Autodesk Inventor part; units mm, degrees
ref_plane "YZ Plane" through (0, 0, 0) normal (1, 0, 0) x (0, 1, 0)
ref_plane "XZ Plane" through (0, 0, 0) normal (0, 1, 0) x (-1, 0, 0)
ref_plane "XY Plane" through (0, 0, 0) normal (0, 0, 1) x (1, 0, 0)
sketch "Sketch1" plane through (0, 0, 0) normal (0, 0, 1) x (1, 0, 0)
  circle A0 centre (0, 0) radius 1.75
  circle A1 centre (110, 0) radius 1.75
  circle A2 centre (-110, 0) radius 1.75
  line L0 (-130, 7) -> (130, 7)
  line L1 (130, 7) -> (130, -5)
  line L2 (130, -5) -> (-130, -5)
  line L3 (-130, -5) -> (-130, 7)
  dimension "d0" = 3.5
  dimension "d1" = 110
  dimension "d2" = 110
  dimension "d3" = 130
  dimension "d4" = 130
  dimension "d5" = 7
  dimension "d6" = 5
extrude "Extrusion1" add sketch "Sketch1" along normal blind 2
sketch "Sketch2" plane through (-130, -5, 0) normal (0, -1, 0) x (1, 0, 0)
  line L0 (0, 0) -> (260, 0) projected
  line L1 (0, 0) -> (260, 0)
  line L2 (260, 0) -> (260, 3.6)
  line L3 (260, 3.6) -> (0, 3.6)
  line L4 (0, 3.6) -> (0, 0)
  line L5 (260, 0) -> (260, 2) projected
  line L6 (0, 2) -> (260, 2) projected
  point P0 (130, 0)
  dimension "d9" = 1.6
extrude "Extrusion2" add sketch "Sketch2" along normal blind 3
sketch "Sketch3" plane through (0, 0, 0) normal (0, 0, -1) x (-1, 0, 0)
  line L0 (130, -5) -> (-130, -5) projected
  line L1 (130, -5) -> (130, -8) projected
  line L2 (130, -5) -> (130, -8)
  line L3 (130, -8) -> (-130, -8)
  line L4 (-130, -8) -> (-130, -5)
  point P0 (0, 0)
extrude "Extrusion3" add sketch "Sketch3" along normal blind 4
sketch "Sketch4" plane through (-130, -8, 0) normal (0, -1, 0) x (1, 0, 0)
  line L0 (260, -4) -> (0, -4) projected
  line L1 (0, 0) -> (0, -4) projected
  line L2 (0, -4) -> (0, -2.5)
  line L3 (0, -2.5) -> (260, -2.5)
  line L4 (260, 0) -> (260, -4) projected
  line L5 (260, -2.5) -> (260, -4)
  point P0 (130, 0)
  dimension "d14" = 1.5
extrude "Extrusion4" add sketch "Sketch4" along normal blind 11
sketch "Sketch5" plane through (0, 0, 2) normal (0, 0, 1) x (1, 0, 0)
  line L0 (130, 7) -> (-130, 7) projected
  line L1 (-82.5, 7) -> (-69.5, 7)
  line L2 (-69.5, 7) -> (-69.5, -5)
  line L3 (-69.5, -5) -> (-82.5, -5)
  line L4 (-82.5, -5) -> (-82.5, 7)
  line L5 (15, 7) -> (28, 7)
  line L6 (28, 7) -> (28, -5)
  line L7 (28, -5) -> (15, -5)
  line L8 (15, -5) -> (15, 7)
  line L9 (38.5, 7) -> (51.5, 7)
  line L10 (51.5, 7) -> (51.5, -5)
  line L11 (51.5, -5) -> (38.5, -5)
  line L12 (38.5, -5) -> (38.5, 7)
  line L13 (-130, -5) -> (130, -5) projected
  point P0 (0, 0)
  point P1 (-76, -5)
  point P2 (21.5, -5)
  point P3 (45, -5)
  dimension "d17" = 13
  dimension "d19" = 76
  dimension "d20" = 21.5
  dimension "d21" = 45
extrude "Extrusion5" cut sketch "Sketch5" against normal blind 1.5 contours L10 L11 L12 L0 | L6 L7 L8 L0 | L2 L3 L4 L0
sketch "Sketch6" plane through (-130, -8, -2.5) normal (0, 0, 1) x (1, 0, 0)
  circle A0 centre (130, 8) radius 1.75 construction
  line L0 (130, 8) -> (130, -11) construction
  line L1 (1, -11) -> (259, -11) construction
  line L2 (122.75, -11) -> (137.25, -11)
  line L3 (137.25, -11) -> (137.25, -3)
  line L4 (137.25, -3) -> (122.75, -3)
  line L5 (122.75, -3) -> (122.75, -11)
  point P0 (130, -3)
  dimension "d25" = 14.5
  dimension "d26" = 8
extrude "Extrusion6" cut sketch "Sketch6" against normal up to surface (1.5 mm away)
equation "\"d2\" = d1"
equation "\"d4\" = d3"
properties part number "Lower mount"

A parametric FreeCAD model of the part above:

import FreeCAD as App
import Part
import Sketcher
from FreeCAD import Vector


def add_polygon(sketch, points):
    """Adds a closed chain of lines whose ends are joined by coincident constraints."""
    first, n = sketch.GeometryCount, len(points)
    for a, b in zip(points, points[1:] + points[:1]):
        sketch.addGeometry(Part.LineSegment(App.Vector(*a, 0), App.Vector(*b, 0)), False)
    for i in range(n):
        sketch.addConstraint(Sketcher.Constraint("Coincident", first + i, 2, first + (i + 1) % n, 1))

doc = App.newDocument("Part")
params = doc.addObject("Spreadsheet::Sheet", "Params")
for row, (alias, value) in enumerate([
    ("sketch1_diameter", "3.5 mm"),
    ("pad1_length", "2 mm"),
    ("sketch2_width", "260 mm"),
    ("sketch2_height", "3.6 mm"),
    ("pad2_length", "3 mm"),
    ("sketch3_width", "260 mm"),
    ("sketch3_height", "3 mm"),
    ("pad3_length", "4 mm"),
    ("sketch4_height", "1.5 mm"),
    ("sketch4_width", "260 mm"),
    ("pad4_length", "11 mm"),
    ("sketch5_width", "13 mm"),
    ("sketch5_height", "12 mm"),
    ("pocket1_length", "1.5 mm"),
    ("sketch6_height", "8 mm"),
    ("sketch6_width", "14.5 mm"),
    ("pocket2_length", "1.5 mm"),
], start=1):
    params.set(f"A{row}", alias)
    params.set(f"B{row}", "=" + value)
    params.setAlias(f"B{row}", alias)

body = doc.addObject("PartDesign::Body", "Body")

# Sketch on XY plane
sketch1 = body.newObject("Sketcher::SketchObject", "Sketch")
sketch1.AttachmentSupport = (doc.getObject("XY_Plane"), [""])
sketch1.MapMode = "FlatFace"
add_polygon(sketch1, [(130, 7), (-130, 7), (-130, -5), (130, -5)])  # lines 0-3
sketch1.addGeometry(Part.Circle(Vector(-110, 0, 0), Vector(0, 0, 1), 1.8), False)  # 4
sketch1.addGeometry(Part.Circle(Vector(0, 0, 0), Vector(0, 0, 1), 1.8), False)  # 5
sketch1.addGeometry(Part.Circle(Vector(110, 0, 0), Vector(0, 0, 1), 1.8), False)  # 6
sketch1.addConstraint(Sketcher.Constraint("Horizontal", 0))
sketch1.addConstraint(Sketcher.Constraint("Vertical", 1))
sketch1.addConstraint(Sketcher.Constraint("Horizontal", 2))
sketch1.addConstraint(Sketcher.Constraint("Vertical", 3))
sketch1.addConstraint(Sketcher.Constraint("Coincident", 5, 3, -1, 1))
sketch1.addConstraint(Sketcher.Constraint("Equal", 4, 5))
sketch1.addConstraint(Sketcher.Constraint("Equal", 5, 6))
sketch1.addConstraint(Sketcher.Constraint("Symmetric", 4, 3, 6, 3, -1, 1))
sketch1.addConstraint(Sketcher.Constraint("PointOnObject", 4, 3, -1))
sketch1.addConstraint(Sketcher.Constraint("Diameter", 4, 3.5))
sketch1.addConstraint(Sketcher.Constraint("DistanceX", 4, 3, -1, 1, 110.0))
sketch1.addConstraint(Sketcher.Constraint("DistanceX", 0, 2, -1, 1, 130.0))
sketch1.addConstraint(Sketcher.Constraint("DistanceY", -1, 1, 0, 2, 7.0))
sketch1.addConstraint(Sketcher.Constraint("DistanceY", 1, 2, -1, 1, 5.0))
sketch1.addConstraint(Sketcher.Constraint("DistanceX", -1, 1, 2, 2, 130.0))
sketch1.setExpression("Constraints[13]", "Params.sketch1_diameter")
pad1 = body.newObject("PartDesign::Pad", "Pad")
pad1.Profile = sketch1
pad1.setExpression("Length", "Params.pad1_length")

# Sketch on XZ plane
sketch2 = body.newObject("Sketcher::SketchObject", "Sketch001")
sketch2.AttachmentSupport = (doc.getObject("XZ_Plane"), [""])
sketch2.MapMode = "FlatFace"
sketch2.AttachmentOffset = App.Placement(Vector(0, 0, 5), App.Rotation())
add_polygon(sketch2, [(-130, 0), (130, 0), (130, 3.6), (-130, 3.6)])  # lines 0-3
sketch2.addConstraint(Sketcher.Constraint("Horizontal", 0))
sketch2.addConstraint(Sketcher.Constraint("Vertical", 1))
sketch2.addConstraint(Sketcher.Constraint("Horizontal", 2))
sketch2.addConstraint(Sketcher.Constraint("Vertical", 3))
sketch2.addConstraint(Sketcher.Constraint("Symmetric", 0, 2, 3, 2, -1, 1))
sketch2.addConstraint(Sketcher.Constraint("DistanceX", 0, 1, 0, 2, 260.0))
sketch2.addConstraint(Sketcher.Constraint("DistanceY", 1, 1, 1, 2, 3.6))
sketch2.setExpression("Constraints[9]", "Params.sketch2_width")
sketch2.setExpression("Constraints[10]", "Params.sketch2_height")
pad2 = body.newObject("PartDesign::Pad", "Pad001")
pad2.Profile = sketch2
pad2.setExpression("Length", "Params.pad2_length")

# Sketch on XY plane
sketch3 = body.newObject("Sketcher::SketchObject", "Sketch002")
sketch3.AttachmentSupport = (doc.getObject("XY_Plane"), [""])
sketch3.MapMode = "FlatFace"
add_polygon(sketch3, [(-130, -8), (-130, -5), (130, -5), (130, -8)])  # lines 0-3
sketch3.addConstraint(Sketcher.Constraint("Vertical", 0))
sketch3.addConstraint(Sketcher.Constraint("Horizontal", 1))
sketch3.addConstraint(Sketcher.Constraint("Vertical", 2))
sketch3.addConstraint(Sketcher.Constraint("Horizontal", 3))
sketch3.addConstraint(Sketcher.Constraint("DistanceX", 1, 1, 1, 2, 260.0))
sketch3.addConstraint(Sketcher.Constraint("DistanceY", 0, 1, 0, 2, 3.0))
sketch3.addConstraint(Sketcher.Constraint("DistanceX", 0, 2, -1, 1, 130.0))
sketch3.addConstraint(Sketcher.Constraint("DistanceY", 0, 2, -1, 1, 5.0))
sketch3.setExpression("Constraints[8]", "Params.sketch3_width")
sketch3.setExpression("Constraints[9]", "Params.sketch3_height")
pad3 = body.newObject("PartDesign::Pad", "Pad002")
pad3.Profile = sketch3
pad3.setExpression("Length", "Params.pad3_length")
pad3.Reversed = True

# Sketch on XZ plane
sketch4 = body.newObject("Sketcher::SketchObject", "Sketch003")
sketch4.AttachmentSupport = (doc.getObject("XZ_Plane"), [""])
sketch4.MapMode = "FlatFace"
sketch4.AttachmentOffset = App.Placement(Vector(0, 0, 8), App.Rotation())
add_polygon(sketch4, [(-130, -4), (130, -4), (130, -2.5), (-130, -2.5)])  # lines 0-3
sketch4.addConstraint(Sketcher.Constraint("Horizontal", 0))
sketch4.addConstraint(Sketcher.Constraint("Vertical", 1))
sketch4.addConstraint(Sketcher.Constraint("Horizontal", 2))
sketch4.addConstraint(Sketcher.Constraint("Vertical", 3))
sketch4.addConstraint(Sketcher.Constraint("DistanceY", 1, 1, 1, 2, 1.5))
sketch4.addConstraint(Sketcher.Constraint("DistanceX", 0, 1, 0, 2, 260.0))
sketch4.addConstraint(Sketcher.Constraint("DistanceX", -1, 1, 0, 2, 130.0))
sketch4.addConstraint(Sketcher.Constraint("DistanceY", 0, 2, -1, 1, 4.0))
sketch4.setExpression("Constraints[8]", "Params.sketch4_height")
sketch4.setExpression("Constraints[9]", "Params.sketch4_width")
pad4 = body.newObject("PartDesign::Pad", "Pad003")
pad4.Profile = sketch4
pad4.setExpression("Length", "Params.pad4_length")

# Sketch on XY plane
sketch5 = body.newObject("Sketcher::SketchObject", "Sketch004")
sketch5.AttachmentSupport = (doc.getObject("XY_Plane"), [""])
sketch5.MapMode = "FlatFace"
sketch5.AttachmentOffset = App.Placement(Vector(0, 0, 2), App.Rotation())
add_polygon(sketch5, [(52, -5), (52, 7), (38, 7), (38, -5)])  # lines 0-3
add_polygon(sketch5, [(28, -5), (28, 7), (15, 7), (15, -5)])  # lines 4-7
add_polygon(sketch5, [(-70, -5), (-70, 7), (-82, 7), (-82, -5)])  # lines 8-11
sketch5.addConstraint(Sketcher.Constraint("Vertical", 0))
sketch5.addConstraint(Sketcher.Constraint("Horizontal", 1))
sketch5.addConstraint(Sketcher.Constraint("Vertical", 2))
sketch5.addConstraint(Sketcher.Constraint("Horizontal", 3))
sketch5.addConstraint(Sketcher.Constraint("Vertical", 4))
sketch5.addConstraint(Sketcher.Constraint("Horizontal", 5))
sketch5.addConstraint(Sketcher.Constraint("Vertical", 6))
sketch5.addConstraint(Sketcher.Constraint("Horizontal", 7))
sketch5.addConstraint(Sketcher.Constraint("Vertical", 8))
sketch5.addConstraint(Sketcher.Constraint("Horizontal", 9))
sketch5.addConstraint(Sketcher.Constraint("Vertical", 10))
sketch5.addConstraint(Sketcher.Constraint("Horizontal", 11))
sketch5.addConstraint(Sketcher.Constraint("Horizontal", 1, 2, 4, 2))
sketch5.addConstraint(Sketcher.Constraint("Horizontal", 3, 2, 6, 2))
sketch5.addConstraint(Sketcher.Constraint("Horizontal", 5, 2, 8, 2))
sketch5.addConstraint(Sketcher.Constraint("Horizontal", 7, 2, 10, 2))
sketch5.addConstraint(Sketcher.Constraint("Equal", 3, 5))
sketch5.addConstraint(Sketcher.Constraint("Equal", 7, 9))
sketch5.addConstraint(Sketcher.Constraint("DistanceX", 1, 2, 1, 1, 13.0))
sketch5.addConstraint(Sketcher.Constraint("DistanceY", 0, 1, 0, 2, 12.0))
sketch5.addConstraint(Sketcher.Constraint("DistanceY", -1, 1, 0, 2, 7.0))
sketch5.addConstraint(Sketcher.Constraint("DistanceX", -1, 1, 4, 2, 28.0))
sketch5.addConstraint(Sketcher.Constraint("DistanceX", 8, 2, 1, 2, 108.0))
sketch5.addConstraint(Sketcher.Constraint("DistanceX", -1, 1, 0, 2, 51.5))
sketch5.setExpression("Constraints[30]", "Params.sketch5_width")
sketch5.setExpression("Constraints[31]", "Params.sketch5_height")
pocket1 = body.newObject("PartDesign::Pocket", "Pocket")
pocket1.Profile = sketch5
pocket1.setExpression("Length", "Params.pocket1_length")

# Sketch on XY plane
sketch6 = body.newObject("Sketcher::SketchObject", "Sketch005")
sketch6.AttachmentSupport = (doc.getObject("XY_Plane"), [""])
sketch6.MapMode = "FlatFace"
sketch6.AttachmentOffset = App.Placement(Vector(0, 0, -2.5), App.Rotation())
add_polygon(sketch6, [(-7, -11), (-7, -19), (7, -19), (7, -11)])  # lines 0-3
sketch6.addConstraint(Sketcher.Constraint("Vertical", 0))
sketch6.addConstraint(Sketcher.Constraint("Horizontal", 1))
sketch6.addConstraint(Sketcher.Constraint("Vertical", 2))
sketch6.addConstraint(Sketcher.Constraint("Horizontal", 3))
sketch6.addConstraint(Sketcher.Constraint("DistanceY", 0, 2, 0, 1, 8.0))
sketch6.addConstraint(Sketcher.Constraint("DistanceX", 1, 1, 1, 2, 14.5))
sketch6.addConstraint(Sketcher.Constraint("DistanceY", 0, 2, -1, 1, 19.0))
sketch6.addConstraint(Sketcher.Constraint("DistanceX", 0, 2, -1, 1, 7.25))
sketch6.setExpression("Constraints[8]", "Params.sketch6_height")
sketch6.setExpression("Constraints[9]", "Params.sketch6_width")
pocket2 = body.newObject("PartDesign::Pocket", "Pocket001")
pocket2.Profile = sketch6
pocket2.setExpression("Length", "Params.pocket2_length")

doc.recompute()
